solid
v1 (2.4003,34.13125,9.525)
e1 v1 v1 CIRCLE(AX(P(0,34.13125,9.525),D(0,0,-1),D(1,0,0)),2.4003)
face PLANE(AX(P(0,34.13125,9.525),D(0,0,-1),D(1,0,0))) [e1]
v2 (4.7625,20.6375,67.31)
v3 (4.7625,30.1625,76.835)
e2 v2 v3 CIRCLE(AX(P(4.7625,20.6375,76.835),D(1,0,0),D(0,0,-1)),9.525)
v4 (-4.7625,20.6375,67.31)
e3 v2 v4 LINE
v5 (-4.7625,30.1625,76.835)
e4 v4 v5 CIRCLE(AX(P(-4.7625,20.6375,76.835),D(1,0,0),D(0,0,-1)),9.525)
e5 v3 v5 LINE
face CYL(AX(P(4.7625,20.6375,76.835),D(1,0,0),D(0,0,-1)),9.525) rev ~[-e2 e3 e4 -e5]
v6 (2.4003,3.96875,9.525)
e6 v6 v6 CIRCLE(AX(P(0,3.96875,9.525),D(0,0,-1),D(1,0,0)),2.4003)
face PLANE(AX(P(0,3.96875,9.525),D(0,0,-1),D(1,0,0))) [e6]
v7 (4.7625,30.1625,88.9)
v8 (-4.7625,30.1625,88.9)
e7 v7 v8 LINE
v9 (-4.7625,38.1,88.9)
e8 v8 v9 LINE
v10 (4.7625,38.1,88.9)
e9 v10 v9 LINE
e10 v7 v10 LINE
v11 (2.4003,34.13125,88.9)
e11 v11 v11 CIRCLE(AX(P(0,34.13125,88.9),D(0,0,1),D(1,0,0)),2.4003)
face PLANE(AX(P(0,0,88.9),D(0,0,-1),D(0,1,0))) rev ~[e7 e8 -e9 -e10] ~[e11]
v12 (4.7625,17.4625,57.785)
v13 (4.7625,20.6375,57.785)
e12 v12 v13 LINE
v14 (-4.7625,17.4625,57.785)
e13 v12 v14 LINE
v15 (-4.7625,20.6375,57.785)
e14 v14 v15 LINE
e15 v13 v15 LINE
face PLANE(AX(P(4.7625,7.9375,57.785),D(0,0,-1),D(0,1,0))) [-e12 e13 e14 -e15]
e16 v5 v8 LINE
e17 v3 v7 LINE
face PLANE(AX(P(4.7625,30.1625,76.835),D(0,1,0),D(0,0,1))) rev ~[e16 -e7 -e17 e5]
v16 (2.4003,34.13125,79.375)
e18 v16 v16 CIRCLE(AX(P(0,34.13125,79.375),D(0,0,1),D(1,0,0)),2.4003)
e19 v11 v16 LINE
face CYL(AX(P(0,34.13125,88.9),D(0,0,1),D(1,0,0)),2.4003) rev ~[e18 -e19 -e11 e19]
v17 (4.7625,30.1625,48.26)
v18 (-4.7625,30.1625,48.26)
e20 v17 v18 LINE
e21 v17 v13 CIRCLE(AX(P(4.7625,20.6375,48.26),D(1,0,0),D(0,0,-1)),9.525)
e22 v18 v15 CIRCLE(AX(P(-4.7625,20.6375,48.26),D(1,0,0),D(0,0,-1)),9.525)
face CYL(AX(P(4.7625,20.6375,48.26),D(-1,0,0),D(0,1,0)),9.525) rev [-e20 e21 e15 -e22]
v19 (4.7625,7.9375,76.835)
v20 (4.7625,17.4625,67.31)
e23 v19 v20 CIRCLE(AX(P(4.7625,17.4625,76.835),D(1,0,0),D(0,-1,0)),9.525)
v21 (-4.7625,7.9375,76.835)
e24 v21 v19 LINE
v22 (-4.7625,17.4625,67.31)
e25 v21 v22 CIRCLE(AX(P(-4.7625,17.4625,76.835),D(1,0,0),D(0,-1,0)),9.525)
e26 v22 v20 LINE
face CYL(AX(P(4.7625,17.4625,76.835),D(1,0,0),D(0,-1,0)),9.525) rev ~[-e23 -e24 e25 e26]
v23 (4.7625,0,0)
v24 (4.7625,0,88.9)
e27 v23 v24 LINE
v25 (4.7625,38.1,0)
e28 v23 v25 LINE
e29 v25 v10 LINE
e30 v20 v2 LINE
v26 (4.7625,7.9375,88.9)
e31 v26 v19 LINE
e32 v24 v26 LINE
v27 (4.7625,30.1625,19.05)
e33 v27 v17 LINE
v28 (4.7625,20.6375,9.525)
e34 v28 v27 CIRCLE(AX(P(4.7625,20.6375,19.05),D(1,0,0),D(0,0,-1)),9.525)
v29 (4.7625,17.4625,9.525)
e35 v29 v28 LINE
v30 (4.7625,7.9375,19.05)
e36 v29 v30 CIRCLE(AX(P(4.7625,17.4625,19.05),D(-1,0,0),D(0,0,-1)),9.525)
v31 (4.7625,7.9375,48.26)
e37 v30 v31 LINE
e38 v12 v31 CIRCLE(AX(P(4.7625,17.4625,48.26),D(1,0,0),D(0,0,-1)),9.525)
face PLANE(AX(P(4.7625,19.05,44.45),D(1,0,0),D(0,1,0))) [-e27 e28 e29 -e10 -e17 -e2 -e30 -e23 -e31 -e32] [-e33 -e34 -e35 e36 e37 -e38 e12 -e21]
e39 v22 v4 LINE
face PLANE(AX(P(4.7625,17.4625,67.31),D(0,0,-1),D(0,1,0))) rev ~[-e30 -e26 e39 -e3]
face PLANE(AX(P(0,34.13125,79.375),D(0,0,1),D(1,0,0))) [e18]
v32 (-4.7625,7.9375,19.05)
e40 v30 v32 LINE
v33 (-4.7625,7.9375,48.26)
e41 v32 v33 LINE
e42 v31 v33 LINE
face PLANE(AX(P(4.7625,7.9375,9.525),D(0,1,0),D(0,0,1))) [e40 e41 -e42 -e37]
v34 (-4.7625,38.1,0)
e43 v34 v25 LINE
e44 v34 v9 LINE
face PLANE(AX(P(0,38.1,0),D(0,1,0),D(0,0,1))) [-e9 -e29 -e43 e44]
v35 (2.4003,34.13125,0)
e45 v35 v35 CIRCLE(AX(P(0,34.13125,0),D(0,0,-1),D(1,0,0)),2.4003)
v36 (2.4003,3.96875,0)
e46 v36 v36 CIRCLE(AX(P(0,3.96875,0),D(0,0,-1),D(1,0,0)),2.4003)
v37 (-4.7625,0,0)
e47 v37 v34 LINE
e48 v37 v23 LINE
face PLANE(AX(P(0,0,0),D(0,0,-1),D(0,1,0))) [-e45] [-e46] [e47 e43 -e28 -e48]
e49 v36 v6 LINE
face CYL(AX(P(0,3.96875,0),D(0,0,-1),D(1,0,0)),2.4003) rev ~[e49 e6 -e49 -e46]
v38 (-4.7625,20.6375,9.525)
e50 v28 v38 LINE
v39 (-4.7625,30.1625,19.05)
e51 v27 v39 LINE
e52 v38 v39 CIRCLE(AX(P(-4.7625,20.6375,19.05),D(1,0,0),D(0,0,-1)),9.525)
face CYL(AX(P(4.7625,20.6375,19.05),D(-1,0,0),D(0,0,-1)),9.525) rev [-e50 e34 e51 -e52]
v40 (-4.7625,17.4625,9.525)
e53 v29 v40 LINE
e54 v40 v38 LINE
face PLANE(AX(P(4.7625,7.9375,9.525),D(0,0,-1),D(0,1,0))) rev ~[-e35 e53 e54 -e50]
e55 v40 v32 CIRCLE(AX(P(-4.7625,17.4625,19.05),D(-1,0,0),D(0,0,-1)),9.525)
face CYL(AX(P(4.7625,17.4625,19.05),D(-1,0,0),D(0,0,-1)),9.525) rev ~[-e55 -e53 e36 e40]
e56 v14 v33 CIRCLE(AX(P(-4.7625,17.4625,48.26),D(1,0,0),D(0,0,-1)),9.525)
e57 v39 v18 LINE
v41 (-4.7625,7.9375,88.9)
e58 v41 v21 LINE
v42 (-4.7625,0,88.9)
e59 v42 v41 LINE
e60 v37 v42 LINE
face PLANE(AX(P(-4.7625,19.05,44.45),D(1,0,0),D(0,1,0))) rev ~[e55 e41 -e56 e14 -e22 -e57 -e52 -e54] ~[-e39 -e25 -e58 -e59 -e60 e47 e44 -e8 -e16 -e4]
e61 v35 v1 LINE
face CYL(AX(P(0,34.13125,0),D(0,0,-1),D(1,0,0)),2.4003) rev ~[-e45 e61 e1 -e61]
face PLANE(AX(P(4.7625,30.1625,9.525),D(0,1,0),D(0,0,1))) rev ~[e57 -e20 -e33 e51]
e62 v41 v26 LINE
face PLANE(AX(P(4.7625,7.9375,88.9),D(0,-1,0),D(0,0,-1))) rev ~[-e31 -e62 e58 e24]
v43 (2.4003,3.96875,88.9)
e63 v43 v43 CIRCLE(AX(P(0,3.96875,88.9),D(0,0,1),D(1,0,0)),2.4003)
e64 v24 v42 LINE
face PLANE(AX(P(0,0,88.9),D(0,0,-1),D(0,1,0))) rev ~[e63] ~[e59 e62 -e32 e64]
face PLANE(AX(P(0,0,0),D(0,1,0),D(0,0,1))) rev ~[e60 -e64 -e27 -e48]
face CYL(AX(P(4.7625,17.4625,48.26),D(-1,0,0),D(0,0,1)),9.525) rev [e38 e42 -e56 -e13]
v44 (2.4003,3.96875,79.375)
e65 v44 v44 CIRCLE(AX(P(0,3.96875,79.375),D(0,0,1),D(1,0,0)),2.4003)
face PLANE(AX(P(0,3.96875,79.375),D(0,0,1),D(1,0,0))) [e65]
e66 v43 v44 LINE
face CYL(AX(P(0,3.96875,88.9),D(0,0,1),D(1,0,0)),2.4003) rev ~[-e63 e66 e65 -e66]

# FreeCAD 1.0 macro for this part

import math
import FreeCAD as App
import Part
import Sketcher

V = App.Vector
Q = App.Units.Quantity


def edges_at(feature, points):
    """Names of the edges that pass closest to the given points."""
    edges = feature.Shape.Edges
    near = lambda p: min(range(len(edges)), key=lambda i: edges[i].distToShape(Part.Vertex(*p))[0])
    return sorted({f"Edge{near(p) + 1}" for p in points})

doc = App.newDocument("Part")
body = doc.addObject("PartDesign::Body", "Body")

sketch1 = doc.addObject("Sketcher::SketchObject", "Sketch")
body.addObject(sketch1)
sketch1.AttachmentSupport = (doc.YZ_Plane, [""])
sketch1.MapMode = "FlatFace"
sketch1.addGeometry([
    Part.LineSegment(V(0, 89, 0), V(0, 0, 0)),
    Part.LineSegment(V(0, 0, 0), V(38, 0, 0)),
    Part.LineSegment(V(38, 0, 0), V(38, 89, 0)),
    Part.LineSegment(V(38, 89, 0), V(0, 89, 0)),
], False)
sketch1.addConstraint([
    Sketcher.Constraint("Coincident", 0, 2, 1, 1),
    Sketcher.Constraint("Coincident", 1, 2, 2, 1),
    Sketcher.Constraint("Coincident", 2, 2, 3, 1),
    Sketcher.Constraint("Coincident", 3, 2, 0, 1),
    Sketcher.Constraint("Vertical", 0),
    Sketcher.Constraint("Horizontal", 1),
    Sketcher.Constraint("Vertical", 2),
    Sketcher.Constraint("Horizontal", 3),
    Sketcher.Constraint("Coincident", 0, 2, -1, 1),
    Sketcher.Constraint("DistanceX", 1, 1, 1, 2, Q("1.5 in")),
    Sketcher.Constraint("DistanceY", 0, 2, 0, 1, Q("3.5 in")),
])
pad1 = doc.addObject("PartDesign::Pad", "Pad")
body.addObject(pad1)
pad1.Profile = sketch1
pad1.Length = Q("0.375 in")
pad1.Midplane = True

sketch2 = doc.addObject("Sketcher::SketchObject", "Sketch001")
body.addObject(sketch2)
sketch2.AttachmentSupport = (doc.YZ_Plane, [""])
sketch2.MapMode = "FlatFace"
sketch2.AttachmentOffset = App.Placement(V(0, 0, 0.1875 * 25.4), App.Rotation())
sketch2.addGeometry([
    Part.LineSegment(V(30.2, 88.9, 0), V(7.9, 88.9, 0)),
    Part.LineSegment(V(7.9, 88.9, 0), V(7.9, 76.8, 0)),
    Part.ArcOfCircle(Part.Circle(V(17.5, 76.8, 0), V(0, 0, 1), 9.5), math.radians(180), math.radians(270)),
    Part.LineSegment(V(17.5, 67.3, 0), V(20.6, 67.3, 0)),
    Part.ArcOfCircle(Part.Circle(V(20.6, 76.8, 0), V(0, 0, 1), 9.5), math.radians(-90), math.radians(0)),
    Part.LineSegment(V(30.2, 76.8, 0), V(30.2, 88.9, 0)),
], False)
sketch2.addConstraint([
    Sketcher.Constraint("Coincident", 0, 2, 1, 1),
    Sketcher.Constraint("Tangent", 1, 2, 2, 1),
    Sketcher.Constraint("Tangent", 2, 2, 3, 1),
    Sketcher.Constraint("Tangent", 3, 2, 4, 1),
    Sketcher.Constraint("Tangent", 4, 2, 5, 1),
    Sketcher.Constraint("Coincident", 5, 2, 0, 1),
    Sketcher.Constraint("Horizontal", 0),
    Sketcher.Constraint("Vertical", 1),
    Sketcher.Constraint("Horizontal", 3),
    Sketcher.Constraint("Vertical", 5),
    Sketcher.Constraint("Equal", 2, 4),
    Sketcher.Constraint("Radius", 2, Q("0.375 in")),
    Sketcher.Constraint("DistanceY", -1, 1, 0, 2, Q("3.5 in")),
    Sketcher.Constraint("DistanceX", 0, 2, 4, 3, Q("0.5 in")),
    Sketcher.Constraint("DistanceY", 1, 2, 1, 1, Q("0.475 in")),
    Sketcher.Constraint("DistanceX", -1, 1, 2, 3, Q("0.6875 in")),
])
pocket1 = doc.addObject("PartDesign::Pocket", "Pocket")
body.addObject(pocket1)
pocket1.Profile = sketch2
pocket1.Length = Q("1 in")
pocket1.Midplane = True

sketch3 = doc.addObject("Sketcher::SketchObject", "Sketch002")
body.addObject(sketch3)
sketch3.AttachmentSupport = (doc.XY_Plane, [""])
sketch3.MapMode = "FlatFace"
sketch3.AttachmentOffset = App.Placement(V(0, 0, 3.5 * 25.4), App.Rotation())
sketch3.addGeometry([
    Part.Circle(V(0, 4, 0), V(0, 0, 1), 2.4),
    Part.Circle(V(0, 34.1, 0), V(0, 0, 1), 2.4),
], False)
sketch3.addConstraint([
    Sketcher.Constraint("Equal", 0, 1),
    Sketcher.Constraint("PointOnObject", 0, 3, -2),
    Sketcher.Constraint("PointOnObject", 1, 3, -2),
    Sketcher.Constraint("Diameter", 0, Q("0.189 in")),
    Sketcher.Constraint("DistanceY", -1, 1, 0, 3, Q("0.15625 in")),
    Sketcher.Constraint("DistanceY", -1, 1, 1, 3, Q("1.34375 in")),
])
pocket2 = doc.addObject("PartDesign::Pocket", "Pocket001")
body.addObject(pocket2)
pocket2.Profile = sketch3
pocket2.Length = Q("0.375 in")

sketch4 = doc.addObject("Sketcher::SketchObject", "Sketch003")
body.addObject(sketch4)
sketch4.AttachmentSupport = (doc.XY_Plane, [""])
sketch4.MapMode = "FlatFace"
sketch4.addGeometry([
    Part.Circle(V(0, 4, 0), V(0, 0, 1), 2.4),
    Part.Circle(V(0, 34.1, 0), V(0, 0, 1), 2.4),
], False)
sketch4.addConstraint([
    Sketcher.Constraint("Equal", 0, 1),
    Sketcher.Constraint("PointOnObject", 0, 3, -2),
    Sketcher.Constraint("PointOnObject", 1, 3, -2),
    Sketcher.Constraint("Diameter", 0, Q("0.189 in")),
    Sketcher.Constraint("DistanceY", -1, 1, 0, 3, Q("0.15625 in")),
    Sketcher.Constraint("DistanceY", -1, 1, 1, 3, Q("1.34375 in")),
])
pocket3 = doc.addObject("PartDesign::Pocket", "Pocket002")
body.addObject(pocket3)
pocket3.Profile = sketch4
pocket3.Length = Q("0.375 in")
pocket3.Reversed = True

sketch5 = doc.addObject("Sketcher::SketchObject", "Sketch004")
body.addObject(sketch5)
sketch5.AttachmentSupport = (doc.YZ_Plane, [""])
sketch5.MapMode = "FlatFace"
sketch5.AttachmentOffset = App.Placement(V(0, 0, 0.1875 * 25.4), App.Rotation())
sketch5.addGeometry([
    Part.LineSegment(V(8, 58, 0), V(8, 10, 0)),
    Part.LineSegment(V(8, 10, 0), V(30, 10, 0)),
    Part.LineSegment(V(30, 10, 0), V(30, 58, 0)),
    Part.LineSegment(V(30, 58, 0), V(8, 58, 0)),
], False)
sketch5.addConstraint([
    Sketcher.Constraint("Coincident", 0, 2, 1, 1),
    Sketcher.Constraint("Coincident", 1, 2, 2, 1),
    Sketcher.Constraint("Coincident", 2, 2, 3, 1),
    Sketcher.Constraint("Coincident", 3, 2, 0, 1),
    Sketcher.Constraint("Vertical", 0),
    Sketcher.Constraint("Horizontal", 1),
    Sketcher.Constraint("Vertical", 2),
    Sketcher.Constraint("Horizontal", 3),
    Sketcher.Constraint("DistanceY", 0, 2, 0, 1, Q("1.9 in")),
    Sketcher.Constraint("DistanceX", 1, 1, 1, 2, Q("0.875 in")),
    Sketcher.Constraint("DistanceX", -1, 1, 0, 2, Q("0.3125 in")),
    Sketcher.Constraint("DistanceY", -1, 1, 0, 2, Q("0.375 in")),
])
pocket4 = doc.addObject("PartDesign::Pocket", "Pocket003")
body.addObject(pocket4)
pocket4.Profile = sketch5
pocket4.Type = "ThroughAll"
doc.recompute()

fillet = doc.addObject("PartDesign::Fillet", "Fillet")
body.addObject(fillet)
fillet.Base = (pocket4, edges_at(pocket4, [
    (0, 7.938, 57.785),
    (0, 30.163, 57.785),
    (0, 7.938, 9.525),
    (0, 30.163, 9.525),
]))
fillet.Radius = Q("0.375 in")

doc.recompute()
